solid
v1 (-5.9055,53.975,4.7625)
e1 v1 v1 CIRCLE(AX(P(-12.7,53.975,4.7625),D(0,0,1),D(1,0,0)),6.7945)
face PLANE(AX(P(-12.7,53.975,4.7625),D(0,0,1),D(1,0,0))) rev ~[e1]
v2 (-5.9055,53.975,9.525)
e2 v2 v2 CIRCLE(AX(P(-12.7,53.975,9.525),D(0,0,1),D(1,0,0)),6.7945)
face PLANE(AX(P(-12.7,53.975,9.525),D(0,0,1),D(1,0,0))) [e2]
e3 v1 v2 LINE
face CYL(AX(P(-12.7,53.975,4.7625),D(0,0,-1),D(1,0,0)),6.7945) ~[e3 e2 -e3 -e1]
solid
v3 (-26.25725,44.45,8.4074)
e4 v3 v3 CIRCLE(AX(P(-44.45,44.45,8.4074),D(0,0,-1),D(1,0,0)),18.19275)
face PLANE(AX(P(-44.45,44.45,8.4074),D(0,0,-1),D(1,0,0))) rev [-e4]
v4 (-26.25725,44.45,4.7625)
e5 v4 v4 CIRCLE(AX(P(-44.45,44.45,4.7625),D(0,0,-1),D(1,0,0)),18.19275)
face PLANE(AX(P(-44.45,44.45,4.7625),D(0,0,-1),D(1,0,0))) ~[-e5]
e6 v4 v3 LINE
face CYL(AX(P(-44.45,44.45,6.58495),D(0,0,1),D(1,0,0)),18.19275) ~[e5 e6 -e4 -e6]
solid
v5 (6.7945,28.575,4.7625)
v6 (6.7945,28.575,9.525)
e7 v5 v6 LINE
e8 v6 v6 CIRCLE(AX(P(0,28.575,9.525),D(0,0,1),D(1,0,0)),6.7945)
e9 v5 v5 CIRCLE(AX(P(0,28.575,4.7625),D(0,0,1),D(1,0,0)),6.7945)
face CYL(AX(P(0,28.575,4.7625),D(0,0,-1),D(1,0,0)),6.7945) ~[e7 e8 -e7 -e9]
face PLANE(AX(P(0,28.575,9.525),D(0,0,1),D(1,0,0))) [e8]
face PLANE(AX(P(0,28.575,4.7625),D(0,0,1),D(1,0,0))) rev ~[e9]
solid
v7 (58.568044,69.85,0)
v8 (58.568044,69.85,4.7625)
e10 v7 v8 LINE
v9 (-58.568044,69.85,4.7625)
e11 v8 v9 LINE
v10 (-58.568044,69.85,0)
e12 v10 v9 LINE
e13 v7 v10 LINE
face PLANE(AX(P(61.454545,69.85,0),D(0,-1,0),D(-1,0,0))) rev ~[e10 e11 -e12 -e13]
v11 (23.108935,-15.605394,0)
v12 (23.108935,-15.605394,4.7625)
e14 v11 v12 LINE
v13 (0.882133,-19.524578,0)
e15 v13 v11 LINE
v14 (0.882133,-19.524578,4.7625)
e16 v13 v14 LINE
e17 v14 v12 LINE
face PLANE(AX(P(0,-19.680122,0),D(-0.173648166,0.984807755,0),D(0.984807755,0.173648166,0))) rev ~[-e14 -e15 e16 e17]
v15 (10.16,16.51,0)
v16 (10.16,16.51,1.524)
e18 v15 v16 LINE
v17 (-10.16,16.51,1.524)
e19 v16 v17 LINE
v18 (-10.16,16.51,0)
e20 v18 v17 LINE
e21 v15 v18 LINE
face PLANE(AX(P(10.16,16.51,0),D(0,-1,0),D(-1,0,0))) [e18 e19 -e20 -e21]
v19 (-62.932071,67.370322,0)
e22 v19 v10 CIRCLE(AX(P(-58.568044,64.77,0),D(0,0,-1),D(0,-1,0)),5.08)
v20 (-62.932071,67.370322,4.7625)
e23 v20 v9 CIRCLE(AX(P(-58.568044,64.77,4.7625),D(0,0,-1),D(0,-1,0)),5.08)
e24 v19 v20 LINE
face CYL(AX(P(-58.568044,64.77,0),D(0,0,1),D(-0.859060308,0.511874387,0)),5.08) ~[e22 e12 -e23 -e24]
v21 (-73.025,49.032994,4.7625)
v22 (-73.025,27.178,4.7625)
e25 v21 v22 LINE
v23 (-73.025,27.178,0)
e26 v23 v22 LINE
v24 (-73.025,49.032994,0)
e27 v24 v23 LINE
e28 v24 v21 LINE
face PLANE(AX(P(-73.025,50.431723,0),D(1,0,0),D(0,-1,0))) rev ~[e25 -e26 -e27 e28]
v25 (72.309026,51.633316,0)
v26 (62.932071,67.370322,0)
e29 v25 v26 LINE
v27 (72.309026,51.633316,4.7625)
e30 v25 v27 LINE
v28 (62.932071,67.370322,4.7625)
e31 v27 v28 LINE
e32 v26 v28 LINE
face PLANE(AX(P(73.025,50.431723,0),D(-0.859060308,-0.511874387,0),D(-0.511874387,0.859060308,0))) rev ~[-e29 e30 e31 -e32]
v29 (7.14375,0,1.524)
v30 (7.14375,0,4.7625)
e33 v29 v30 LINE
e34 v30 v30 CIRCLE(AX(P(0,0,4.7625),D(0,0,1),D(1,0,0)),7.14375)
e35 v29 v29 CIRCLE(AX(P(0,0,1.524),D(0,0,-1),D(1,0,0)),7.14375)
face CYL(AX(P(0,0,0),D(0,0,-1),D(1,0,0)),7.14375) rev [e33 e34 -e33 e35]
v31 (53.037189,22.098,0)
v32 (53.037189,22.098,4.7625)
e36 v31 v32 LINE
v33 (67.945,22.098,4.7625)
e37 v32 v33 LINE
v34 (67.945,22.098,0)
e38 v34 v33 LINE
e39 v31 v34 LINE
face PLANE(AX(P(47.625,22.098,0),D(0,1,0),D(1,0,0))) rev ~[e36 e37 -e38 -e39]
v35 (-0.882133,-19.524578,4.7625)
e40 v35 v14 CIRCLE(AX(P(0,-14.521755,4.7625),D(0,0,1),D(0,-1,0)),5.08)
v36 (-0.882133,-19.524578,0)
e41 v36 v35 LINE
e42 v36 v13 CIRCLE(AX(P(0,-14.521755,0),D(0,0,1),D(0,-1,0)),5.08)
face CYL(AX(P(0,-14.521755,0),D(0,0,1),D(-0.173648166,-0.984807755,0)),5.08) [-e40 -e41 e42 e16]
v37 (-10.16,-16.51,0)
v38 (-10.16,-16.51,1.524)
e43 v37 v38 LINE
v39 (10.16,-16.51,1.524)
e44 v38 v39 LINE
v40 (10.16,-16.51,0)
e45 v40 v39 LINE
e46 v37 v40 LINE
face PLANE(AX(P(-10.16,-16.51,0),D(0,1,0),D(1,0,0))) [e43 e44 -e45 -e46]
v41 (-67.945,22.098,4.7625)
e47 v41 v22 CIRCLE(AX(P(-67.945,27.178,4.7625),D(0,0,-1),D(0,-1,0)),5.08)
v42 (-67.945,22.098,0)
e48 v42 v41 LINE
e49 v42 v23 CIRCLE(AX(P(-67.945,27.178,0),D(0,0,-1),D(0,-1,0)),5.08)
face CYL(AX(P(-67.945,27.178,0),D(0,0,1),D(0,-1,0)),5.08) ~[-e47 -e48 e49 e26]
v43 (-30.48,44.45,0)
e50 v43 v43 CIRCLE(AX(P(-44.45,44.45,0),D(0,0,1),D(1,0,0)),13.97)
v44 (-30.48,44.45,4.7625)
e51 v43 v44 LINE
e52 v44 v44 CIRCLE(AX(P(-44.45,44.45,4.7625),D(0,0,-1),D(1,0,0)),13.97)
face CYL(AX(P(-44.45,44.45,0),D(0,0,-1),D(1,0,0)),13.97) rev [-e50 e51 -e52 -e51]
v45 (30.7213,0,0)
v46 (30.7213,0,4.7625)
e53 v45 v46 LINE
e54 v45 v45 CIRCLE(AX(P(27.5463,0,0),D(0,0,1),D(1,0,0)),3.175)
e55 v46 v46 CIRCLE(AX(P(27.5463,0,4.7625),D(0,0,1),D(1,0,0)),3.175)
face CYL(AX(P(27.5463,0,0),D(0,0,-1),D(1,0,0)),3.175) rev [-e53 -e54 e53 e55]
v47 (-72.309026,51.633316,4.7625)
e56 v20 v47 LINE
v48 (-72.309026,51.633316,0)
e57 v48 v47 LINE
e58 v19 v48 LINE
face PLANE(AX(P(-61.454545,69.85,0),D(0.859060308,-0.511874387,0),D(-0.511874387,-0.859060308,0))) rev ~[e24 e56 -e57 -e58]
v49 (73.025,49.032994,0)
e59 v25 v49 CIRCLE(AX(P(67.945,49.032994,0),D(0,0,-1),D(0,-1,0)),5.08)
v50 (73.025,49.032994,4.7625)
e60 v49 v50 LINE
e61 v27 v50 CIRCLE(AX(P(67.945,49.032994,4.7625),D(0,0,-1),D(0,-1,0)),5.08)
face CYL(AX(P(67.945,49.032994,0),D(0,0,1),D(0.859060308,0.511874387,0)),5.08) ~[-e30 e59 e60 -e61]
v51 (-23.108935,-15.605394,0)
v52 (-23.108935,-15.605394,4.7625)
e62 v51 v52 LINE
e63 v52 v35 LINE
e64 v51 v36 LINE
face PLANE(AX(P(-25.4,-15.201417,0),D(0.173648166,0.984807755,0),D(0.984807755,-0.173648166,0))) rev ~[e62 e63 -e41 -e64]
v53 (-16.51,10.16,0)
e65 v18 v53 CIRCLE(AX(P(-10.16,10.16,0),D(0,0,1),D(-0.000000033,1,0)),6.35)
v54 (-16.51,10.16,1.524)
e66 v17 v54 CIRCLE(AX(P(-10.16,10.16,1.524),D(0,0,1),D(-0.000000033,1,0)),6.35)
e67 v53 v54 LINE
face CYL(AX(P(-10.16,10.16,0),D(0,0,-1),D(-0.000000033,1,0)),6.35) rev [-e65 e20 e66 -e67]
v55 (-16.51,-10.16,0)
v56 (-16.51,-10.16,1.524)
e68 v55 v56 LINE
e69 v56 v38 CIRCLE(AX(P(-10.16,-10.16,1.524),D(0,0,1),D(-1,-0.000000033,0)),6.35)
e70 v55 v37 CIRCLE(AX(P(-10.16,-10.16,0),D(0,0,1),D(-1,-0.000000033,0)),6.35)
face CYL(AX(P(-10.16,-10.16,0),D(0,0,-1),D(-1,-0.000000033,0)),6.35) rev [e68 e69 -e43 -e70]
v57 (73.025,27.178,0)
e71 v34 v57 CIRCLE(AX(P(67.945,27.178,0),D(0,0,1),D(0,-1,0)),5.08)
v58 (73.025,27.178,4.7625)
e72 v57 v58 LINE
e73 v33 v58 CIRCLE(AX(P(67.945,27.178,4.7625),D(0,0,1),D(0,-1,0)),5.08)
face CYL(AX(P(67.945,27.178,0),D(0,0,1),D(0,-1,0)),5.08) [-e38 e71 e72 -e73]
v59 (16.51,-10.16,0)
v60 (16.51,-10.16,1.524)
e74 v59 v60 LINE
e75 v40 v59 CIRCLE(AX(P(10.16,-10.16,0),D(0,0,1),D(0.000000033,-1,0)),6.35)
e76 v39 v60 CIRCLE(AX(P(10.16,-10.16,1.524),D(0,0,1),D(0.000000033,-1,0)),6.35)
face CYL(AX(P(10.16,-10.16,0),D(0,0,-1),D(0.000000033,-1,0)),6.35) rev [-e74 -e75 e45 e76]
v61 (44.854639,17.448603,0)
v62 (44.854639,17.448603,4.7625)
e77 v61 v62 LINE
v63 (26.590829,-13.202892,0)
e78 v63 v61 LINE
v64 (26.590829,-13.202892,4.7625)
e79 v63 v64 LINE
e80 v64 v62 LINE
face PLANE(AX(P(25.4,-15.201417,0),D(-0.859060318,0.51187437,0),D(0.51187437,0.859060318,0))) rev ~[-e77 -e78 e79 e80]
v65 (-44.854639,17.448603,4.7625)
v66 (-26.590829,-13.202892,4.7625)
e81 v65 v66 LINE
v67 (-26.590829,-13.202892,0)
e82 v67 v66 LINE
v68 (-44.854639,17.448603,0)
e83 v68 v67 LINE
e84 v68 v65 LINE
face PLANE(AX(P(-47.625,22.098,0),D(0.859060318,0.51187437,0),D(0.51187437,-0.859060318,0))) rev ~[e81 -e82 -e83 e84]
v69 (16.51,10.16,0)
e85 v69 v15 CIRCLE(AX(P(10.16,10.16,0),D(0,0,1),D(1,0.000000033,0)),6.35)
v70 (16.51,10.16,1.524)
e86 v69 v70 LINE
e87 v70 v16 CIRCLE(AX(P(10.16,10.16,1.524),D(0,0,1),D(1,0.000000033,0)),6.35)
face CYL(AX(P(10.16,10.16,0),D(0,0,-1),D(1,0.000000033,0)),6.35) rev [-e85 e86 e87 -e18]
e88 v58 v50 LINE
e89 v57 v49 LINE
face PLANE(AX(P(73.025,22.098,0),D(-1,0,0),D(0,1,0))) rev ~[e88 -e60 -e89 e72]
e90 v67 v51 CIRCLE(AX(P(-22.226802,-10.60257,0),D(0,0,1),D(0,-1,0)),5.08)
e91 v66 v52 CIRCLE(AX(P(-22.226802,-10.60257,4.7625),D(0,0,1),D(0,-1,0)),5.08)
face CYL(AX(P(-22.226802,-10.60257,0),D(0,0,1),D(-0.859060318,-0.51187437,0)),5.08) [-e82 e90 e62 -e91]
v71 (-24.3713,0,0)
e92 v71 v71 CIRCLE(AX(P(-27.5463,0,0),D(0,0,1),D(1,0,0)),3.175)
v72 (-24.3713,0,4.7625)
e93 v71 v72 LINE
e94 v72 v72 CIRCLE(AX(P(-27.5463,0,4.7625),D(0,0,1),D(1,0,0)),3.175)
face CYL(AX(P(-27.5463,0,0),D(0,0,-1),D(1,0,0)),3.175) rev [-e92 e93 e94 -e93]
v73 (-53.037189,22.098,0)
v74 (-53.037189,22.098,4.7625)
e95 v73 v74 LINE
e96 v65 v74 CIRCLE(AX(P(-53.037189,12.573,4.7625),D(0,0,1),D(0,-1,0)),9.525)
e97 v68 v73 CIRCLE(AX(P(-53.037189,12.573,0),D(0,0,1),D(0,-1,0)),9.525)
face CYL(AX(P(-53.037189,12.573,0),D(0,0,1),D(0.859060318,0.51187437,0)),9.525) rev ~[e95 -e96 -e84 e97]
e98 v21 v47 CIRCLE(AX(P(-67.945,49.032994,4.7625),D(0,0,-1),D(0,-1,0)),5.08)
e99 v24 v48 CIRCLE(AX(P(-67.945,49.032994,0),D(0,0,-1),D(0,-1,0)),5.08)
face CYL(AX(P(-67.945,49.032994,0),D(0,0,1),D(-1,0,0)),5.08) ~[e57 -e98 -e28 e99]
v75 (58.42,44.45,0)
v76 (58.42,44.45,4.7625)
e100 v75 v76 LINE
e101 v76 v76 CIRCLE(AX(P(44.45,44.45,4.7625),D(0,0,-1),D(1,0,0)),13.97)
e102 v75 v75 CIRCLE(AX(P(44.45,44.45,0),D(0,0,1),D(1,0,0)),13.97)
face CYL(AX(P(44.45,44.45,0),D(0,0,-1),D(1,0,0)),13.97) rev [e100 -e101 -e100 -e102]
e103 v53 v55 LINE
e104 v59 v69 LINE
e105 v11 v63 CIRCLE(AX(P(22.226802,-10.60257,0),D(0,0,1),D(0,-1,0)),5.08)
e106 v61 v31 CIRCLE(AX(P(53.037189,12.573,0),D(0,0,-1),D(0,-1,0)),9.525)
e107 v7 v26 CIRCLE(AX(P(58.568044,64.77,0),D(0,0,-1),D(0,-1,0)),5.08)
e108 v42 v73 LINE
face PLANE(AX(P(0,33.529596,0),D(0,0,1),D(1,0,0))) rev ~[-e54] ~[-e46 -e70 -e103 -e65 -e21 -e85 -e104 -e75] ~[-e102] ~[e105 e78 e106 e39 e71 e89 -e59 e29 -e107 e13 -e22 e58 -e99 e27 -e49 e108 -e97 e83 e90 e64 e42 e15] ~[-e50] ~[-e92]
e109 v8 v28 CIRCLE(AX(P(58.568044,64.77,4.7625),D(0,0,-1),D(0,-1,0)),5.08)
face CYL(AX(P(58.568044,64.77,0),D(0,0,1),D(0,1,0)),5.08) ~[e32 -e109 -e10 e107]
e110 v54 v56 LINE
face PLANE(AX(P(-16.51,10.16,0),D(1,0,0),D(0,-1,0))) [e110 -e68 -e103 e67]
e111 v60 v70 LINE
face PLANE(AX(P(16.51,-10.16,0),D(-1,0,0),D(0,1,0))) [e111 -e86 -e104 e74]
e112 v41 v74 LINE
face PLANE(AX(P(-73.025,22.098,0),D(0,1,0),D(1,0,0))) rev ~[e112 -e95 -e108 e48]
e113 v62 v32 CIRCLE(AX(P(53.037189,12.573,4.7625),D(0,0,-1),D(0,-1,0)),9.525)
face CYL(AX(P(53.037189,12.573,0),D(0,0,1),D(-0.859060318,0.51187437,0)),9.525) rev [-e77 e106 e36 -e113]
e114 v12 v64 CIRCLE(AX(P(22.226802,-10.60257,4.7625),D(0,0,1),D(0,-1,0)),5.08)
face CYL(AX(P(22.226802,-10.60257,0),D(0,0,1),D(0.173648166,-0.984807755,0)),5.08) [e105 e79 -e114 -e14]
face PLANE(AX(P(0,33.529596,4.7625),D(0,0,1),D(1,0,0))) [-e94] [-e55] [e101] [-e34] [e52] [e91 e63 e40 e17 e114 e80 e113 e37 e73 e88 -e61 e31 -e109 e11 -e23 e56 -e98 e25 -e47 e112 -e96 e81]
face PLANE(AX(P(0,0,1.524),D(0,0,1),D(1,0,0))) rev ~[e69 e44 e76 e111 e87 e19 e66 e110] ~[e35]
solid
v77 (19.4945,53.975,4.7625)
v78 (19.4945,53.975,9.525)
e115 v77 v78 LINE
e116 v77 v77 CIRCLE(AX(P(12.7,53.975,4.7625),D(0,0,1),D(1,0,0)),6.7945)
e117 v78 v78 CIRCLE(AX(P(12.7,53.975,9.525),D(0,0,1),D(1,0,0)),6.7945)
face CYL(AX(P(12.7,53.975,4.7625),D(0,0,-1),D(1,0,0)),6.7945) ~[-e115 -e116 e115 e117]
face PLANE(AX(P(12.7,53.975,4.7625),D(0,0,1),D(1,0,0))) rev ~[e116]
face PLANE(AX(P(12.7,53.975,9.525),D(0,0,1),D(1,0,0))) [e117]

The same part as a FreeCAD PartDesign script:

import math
import FreeCAD as App
import Part
import Sketcher
Q = App.Units.Quantity


def edges_at(feature, points):
    """Names of the edges that pass closest to the given points."""
    edges = feature.Shape.Edges
    near = lambda p: min(range(len(edges)), key=lambda i: edges[i].distToShape(Part.Vertex(*p))[0])
    return sorted({f"Edge{near(p) + 1}" for p in points})


def add_polygon(sketch, points):
    """Adds a closed chain of lines whose ends are joined by coincident constraints."""
    first, n = sketch.GeometryCount, len(points)
    for a, b in zip(points, points[1:] + points[:1]):
        sketch.addGeometry(Part.LineSegment(App.Vector(*a, 0), App.Vector(*b, 0)), False)
    for i in range(n):
        sketch.addConstraint(Sketcher.Constraint("Coincident", first + i, 2, first + (i + 1) % n, 1))

doc = App.newDocument("Part")
body = doc.addObject("PartDesign::Body", "Body")

# Sketch on XY plane
sketch1 = body.newObject("Sketcher::SketchObject", "Sketch")
sketch1.AttachmentSupport = (doc.getObject("XY_Plane"), [""])
sketch1.MapMode = "FlatFace"
add_polygon(sketch1, [(-47.6, 22.1), (-25.4, -15.2), (0, -19.7), (25.4, -15.2), (47.6, 22.1), (73, 22.1), (73, 50.4), (61.5, 69.8), (-61.5, 69.8), (-73, 50.4), (-73, 22.1)])  # lines 0-10
sketch1.addGeometry(Part.Circle(App.Vector(-27.5, 0, 0), App.Vector(0, 0, 1), 3.2), False)  # 11
sketch1.addGeometry(Part.Circle(App.Vector(0, 0, 0), App.Vector(0, 0, 1), 7.1), False)  # 12
sketch1.addGeometry(Part.Circle(App.Vector(27.5, 0, 0), App.Vector(0, 0, 1), 3.2), False)  # 13
sketch1.addConstraint([
    Sketcher.Constraint("Horizontal", 4),
    Sketcher.Constraint("Vertical", 5),
    Sketcher.Constraint("Horizontal", 7),
    Sketcher.Constraint("Vertical", 9),
    Sketcher.Constraint("Horizontal", 10),
    Sketcher.Constraint("Coincident", 12, 3, -1, 1),
    Sketcher.Constraint("Equal", 11, 13),
    Sketcher.Constraint("Symmetric", 11, 3, 13, 3, -1, 1),
    Sketcher.Constraint("Symmetric", 0, 2, 2, 2, -2),
    Sketcher.Constraint("Symmetric", 5, 2, 8, 2, -2),
    Sketcher.Constraint("Symmetric", 3, 2, 10, 2, -2),
    Sketcher.Constraint("PointOnObject", 11, 3, -1),
    Sketcher.Constraint("PointOnObject", 1, 2, -2),
    Sketcher.Constraint("Parallel", 0, 6),
    Sketcher.Constraint("Parallel", 3, 8),
    Sketcher.Constraint("Diameter", 11, Q("0.25 in")),
    Sketcher.Constraint("DistanceX", 4, 1, 4, 2, Q("1 in")),
    Sketcher.Constraint("Diameter", 12, Q("0.5625 in")),
    Sketcher.Constraint("DistanceX", 0, 2, -1, 1, Q("1 in")),
    Sketcher.Constraint("Angle", 1, Q("-9.999999 deg")),
    Sketcher.Constraint("DistanceY", -1, 1, 3, 2, Q("0.87 in")),
    Sketcher.Constraint("DistanceY", -1, 1, 6, 2, Q("2.75 in")),
    Sketcher.Constraint("DistanceX", -1, 1, 3, 2, Q("1.875 in")),
    Sketcher.Constraint("DistanceX", 11, 3, 13, 3, Q("2.169 in")),
    Sketcher.Constraint("DistanceX", 7, 2, 7, 1, 122.90909),
    Sketcher.Constraint("Distance", 6, 22.604091),
])
pad1 = body.newObject("PartDesign::Pad", "Pad")
pad1.Profile = sketch1
pad1.Length = Q("0.1875 in")
doc.recompute()

fillet = body.newObject("PartDesign::Fillet", "Fillet")
fillet.Base = (pad1, edges_at(pad1, [(-47.625, 22.098, 2.381), (47.625, 22.098, 2.381)]))
fillet.Radius = Q("0.375 in")
doc.recompute()

fillet2 = body.newObject("PartDesign::Fillet", "Fillet001")
fillet2.Base = (fillet, edges_at(fillet, [
    (-73.025, 22.098, 2.381),
    (-25.4, -15.201, 2.381),
    (0, -19.68, 2.381),
    (25.4, -15.201, 2.381),
    (73.025, 22.098, 2.381),
    (73.025, 50.432, 2.381),
    (61.455, 69.85, 2.381),
    (-73.025, 50.432, 2.381),
    (-61.455, 69.85, 2.381),
]))
fillet2.Radius = Q("0.2 in")

# Sketch on XY plane
sketch2 = body.newObject("Sketcher::SketchObject", "Sketch001")
sketch2.AttachmentSupport = (doc.getObject("XY_Plane"), [""])
sketch2.MapMode = "FlatFace"
sketch2.addGeometry([
    Part.Circle(App.Vector(-44, 44, 0), App.Vector(0, 0, 1), 14),
    Part.Circle(App.Vector(44, 44, 0), App.Vector(0, 0, 1), 14),
], False)
sketch2.addConstraint([
    Sketcher.Constraint("Equal", 0, 1),
    Sketcher.Constraint("Symmetric", 0, 3, 1, 3, -2),
    Sketcher.Constraint("Diameter", 0, Q("1.1 in")),
    Sketcher.Constraint("DistanceX", 0, 3, 1, 3, Q("3.5 in")),
    Sketcher.Constraint("DistanceY", -1, 1, 0, 3, Q("1.75 in")),
])
pocket1 = body.newObject("PartDesign::Pocket", "Pocket")
pocket1.Profile = sketch2
pocket1.Length = Q("1 in")
pocket1.Reversed = True

# Sketch on XY plane
sketch3 = body.newObject("Sketcher::SketchObject", "Sketch002")
sketch3.AttachmentSupport = (doc.getObject("XY_Plane"), [""])
sketch3.MapMode = "FlatFace"
sketch3.addGeometry([
    Part.LineSegment(App.Vector(-17, 10, 0), App.Vector(-17, -10, 0)),  # 0
    Part.ArcOfCircle(Part.Circle(App.Vector(-10, -10, 0), App.Vector(0, 0, 1), 6), math.radians(-180), math.radians(-90)),  # 1
    Part.LineSegment(App.Vector(-10, -17, 0), App.Vector(10, -17, 0)),  # 2
    Part.ArcOfCircle(Part.Circle(App.Vector(10, -10, 0), App.Vector(0, 0, 1), 6), math.radians(-90), math.radians(0)),  # 3
    Part.LineSegment(App.Vector(17, -10, 0), App.Vector(17, 10, 0)),  # 4
    Part.ArcOfCircle(Part.Circle(App.Vector(10, 10, 0), App.Vector(0, 0, 1), 6), math.radians(0), math.radians(90)),  # 5
    Part.LineSegment(App.Vector(10, 17, 0), App.Vector(-10, 17, 0)),  # 6
    Part.ArcOfCircle(Part.Circle(App.Vector(-10, 10, 0), App.Vector(0, 0, 1), 6), math.radians(90), math.radians(180)),  # 7
], False)
sketch3.addConstraint([
    Sketcher.Constraint("Tangent", 0, 2, 1, 1),
    Sketcher.Constraint("Tangent", 1, 2, 2, 1),
    Sketcher.Constraint("Tangent", 2, 2, 3, 1),
    Sketcher.Constraint("Tangent", 3, 2, 4, 1),
    Sketcher.Constraint("Tangent", 4, 2, 5, 1),
    Sketcher.Constraint("Tangent", 5, 2, 6, 1),
    Sketcher.Constraint("Tangent", 6, 2, 7, 1),
    Sketcher.Constraint("Tangent", 7, 2, 0, 1),
    Sketcher.Constraint("Vertical", 0),
    Sketcher.Constraint("Horizontal", 2),
    Sketcher.Constraint("Vertical", 4),
    Sketcher.Constraint("Horizontal", 6),
    Sketcher.Constraint("Equal", 1, 3),
    Sketcher.Constraint("Equal", 3, 5),
    Sketcher.Constraint("Equal", 5, 7),
    Sketcher.Constraint("Symmetric", 1, 3, 5, 3, -1, 1),
    Sketcher.Constraint("Equal", 6, 0),
    Sketcher.Constraint("Radius", 1, Q("0.25 in")),
    Sketcher.Constraint("DistanceX", 2, 1, 2, 2, Q("0.8 in")),
])
pocket2 = body.newObject("PartDesign::Pocket", "Pocket001")
pocket2.Profile = sketch3
pocket2.Length = Q("0.06 in")
pocket2.Reversed = True
body2 = doc.addObject("PartDesign::Body", "Body001")

# Sketch on XZ plane
sketch4 = body2.newObject("Sketcher::SketchObject", "Sketch003")
sketch4.AttachmentSupport = (doc.getObject("XZ_Plane001"), [""])
sketch4.MapMode = "FlatFace"
sketch4.AttachmentOffset = App.Placement(App.Vector(0, 0, -1.75 * 25.4), App.Rotation())
add_polygon(sketch4, [(-44.5, 8.4), (-44.5, 4.8), (-26.3, 4.8), (-26.3, 8.4)])  # lines 0-3
sketch4.addGeometry(Part.LineSegment(App.Vector(-44.5, 8.4, 0), App.Vector(-44.5, 4.8, 0)), True)  # axis
sketch4.addConstraint([
    Sketcher.Constraint("Vertical", 0),
    Sketcher.Constraint("Horizontal", 1),
    Sketcher.Constraint("Vertical", 2),
    Sketcher.Constraint("Horizontal", 3),
    Sketcher.Constraint("Vertical", 4),
    Sketcher.Constraint("Coincident", 4, 1, 3, 2),
    Sketcher.Constraint("Horizontal", 1, 2, 4, 2),
    Sketcher.Constraint("DistanceX", 0, 2, -1, 1, Q("1.75 in")),
    Sketcher.Constraint("DistanceY", 0, 2, 0, 1, Q("0.1435 in")),
    Sketcher.Constraint("DistanceY", -1, 1, 0, 2, Q("0.1875 in")),
    Sketcher.Constraint("DistanceX", 1, 1, 1, 2, 18.19275),
])
revolution = body2.newObject("PartDesign::Revolution", "Revolution")
revolution.Profile = sketch4
revolution.ReferenceAxis = (sketch4, ["Axis0"])
revolution.Angle = 360
body3 = doc.addObject("PartDesign::Body", "Body002")
body3.AllowCompound = True

# Sketch on XY plane
sketch5 = body3.newObject("Sketcher::SketchObject", "Sketch004")
sketch5.AttachmentSupport = (doc.getObject("XY_Plane002"), [""])
sketch5.MapMode = "FlatFace"
sketch5.AttachmentOffset = App.Placement(App.Vector(0, 0, 0.1875 * 25.4), App.Rotation())
sketch5.addGeometry([
    Part.Circle(App.Vector(-13, 54, 0), App.Vector(0, 0, 1), 7),
    Part.Circle(App.Vector(0, 29, 0), App.Vector(0, 0, 1), 7),
    Part.Circle(App.Vector(13, 54, 0), App.Vector(0, 0, 1), 7),
], False)
sketch5.addConstraint([
    Sketcher.Constraint("Equal", 0, 1),
    Sketcher.Constraint("Equal", 1, 2),
    Sketcher.Constraint("Symmetric", 0, 3, 2, 3, -2),
    Sketcher.Constraint("PointOnObject", 1, 3, -2),
    Sketcher.Constraint("Diameter", 0, Q("0.535 in")),
    Sketcher.Constraint("DistanceY", 1, 3, 0, 3, Q("1 in")),
    Sketcher.Constraint("DistanceX", 0, 3, 2, 3, Q("1 in")),
    Sketcher.Constraint("DistanceY", -1, 1, 0, 3, Q("2.125 in")),
])
pad2 = body3.newObject("PartDesign::Pad", "Pad001")
pad2.Profile = sketch5
pad2.Length = Q("0.1875 in")

doc.recompute()
